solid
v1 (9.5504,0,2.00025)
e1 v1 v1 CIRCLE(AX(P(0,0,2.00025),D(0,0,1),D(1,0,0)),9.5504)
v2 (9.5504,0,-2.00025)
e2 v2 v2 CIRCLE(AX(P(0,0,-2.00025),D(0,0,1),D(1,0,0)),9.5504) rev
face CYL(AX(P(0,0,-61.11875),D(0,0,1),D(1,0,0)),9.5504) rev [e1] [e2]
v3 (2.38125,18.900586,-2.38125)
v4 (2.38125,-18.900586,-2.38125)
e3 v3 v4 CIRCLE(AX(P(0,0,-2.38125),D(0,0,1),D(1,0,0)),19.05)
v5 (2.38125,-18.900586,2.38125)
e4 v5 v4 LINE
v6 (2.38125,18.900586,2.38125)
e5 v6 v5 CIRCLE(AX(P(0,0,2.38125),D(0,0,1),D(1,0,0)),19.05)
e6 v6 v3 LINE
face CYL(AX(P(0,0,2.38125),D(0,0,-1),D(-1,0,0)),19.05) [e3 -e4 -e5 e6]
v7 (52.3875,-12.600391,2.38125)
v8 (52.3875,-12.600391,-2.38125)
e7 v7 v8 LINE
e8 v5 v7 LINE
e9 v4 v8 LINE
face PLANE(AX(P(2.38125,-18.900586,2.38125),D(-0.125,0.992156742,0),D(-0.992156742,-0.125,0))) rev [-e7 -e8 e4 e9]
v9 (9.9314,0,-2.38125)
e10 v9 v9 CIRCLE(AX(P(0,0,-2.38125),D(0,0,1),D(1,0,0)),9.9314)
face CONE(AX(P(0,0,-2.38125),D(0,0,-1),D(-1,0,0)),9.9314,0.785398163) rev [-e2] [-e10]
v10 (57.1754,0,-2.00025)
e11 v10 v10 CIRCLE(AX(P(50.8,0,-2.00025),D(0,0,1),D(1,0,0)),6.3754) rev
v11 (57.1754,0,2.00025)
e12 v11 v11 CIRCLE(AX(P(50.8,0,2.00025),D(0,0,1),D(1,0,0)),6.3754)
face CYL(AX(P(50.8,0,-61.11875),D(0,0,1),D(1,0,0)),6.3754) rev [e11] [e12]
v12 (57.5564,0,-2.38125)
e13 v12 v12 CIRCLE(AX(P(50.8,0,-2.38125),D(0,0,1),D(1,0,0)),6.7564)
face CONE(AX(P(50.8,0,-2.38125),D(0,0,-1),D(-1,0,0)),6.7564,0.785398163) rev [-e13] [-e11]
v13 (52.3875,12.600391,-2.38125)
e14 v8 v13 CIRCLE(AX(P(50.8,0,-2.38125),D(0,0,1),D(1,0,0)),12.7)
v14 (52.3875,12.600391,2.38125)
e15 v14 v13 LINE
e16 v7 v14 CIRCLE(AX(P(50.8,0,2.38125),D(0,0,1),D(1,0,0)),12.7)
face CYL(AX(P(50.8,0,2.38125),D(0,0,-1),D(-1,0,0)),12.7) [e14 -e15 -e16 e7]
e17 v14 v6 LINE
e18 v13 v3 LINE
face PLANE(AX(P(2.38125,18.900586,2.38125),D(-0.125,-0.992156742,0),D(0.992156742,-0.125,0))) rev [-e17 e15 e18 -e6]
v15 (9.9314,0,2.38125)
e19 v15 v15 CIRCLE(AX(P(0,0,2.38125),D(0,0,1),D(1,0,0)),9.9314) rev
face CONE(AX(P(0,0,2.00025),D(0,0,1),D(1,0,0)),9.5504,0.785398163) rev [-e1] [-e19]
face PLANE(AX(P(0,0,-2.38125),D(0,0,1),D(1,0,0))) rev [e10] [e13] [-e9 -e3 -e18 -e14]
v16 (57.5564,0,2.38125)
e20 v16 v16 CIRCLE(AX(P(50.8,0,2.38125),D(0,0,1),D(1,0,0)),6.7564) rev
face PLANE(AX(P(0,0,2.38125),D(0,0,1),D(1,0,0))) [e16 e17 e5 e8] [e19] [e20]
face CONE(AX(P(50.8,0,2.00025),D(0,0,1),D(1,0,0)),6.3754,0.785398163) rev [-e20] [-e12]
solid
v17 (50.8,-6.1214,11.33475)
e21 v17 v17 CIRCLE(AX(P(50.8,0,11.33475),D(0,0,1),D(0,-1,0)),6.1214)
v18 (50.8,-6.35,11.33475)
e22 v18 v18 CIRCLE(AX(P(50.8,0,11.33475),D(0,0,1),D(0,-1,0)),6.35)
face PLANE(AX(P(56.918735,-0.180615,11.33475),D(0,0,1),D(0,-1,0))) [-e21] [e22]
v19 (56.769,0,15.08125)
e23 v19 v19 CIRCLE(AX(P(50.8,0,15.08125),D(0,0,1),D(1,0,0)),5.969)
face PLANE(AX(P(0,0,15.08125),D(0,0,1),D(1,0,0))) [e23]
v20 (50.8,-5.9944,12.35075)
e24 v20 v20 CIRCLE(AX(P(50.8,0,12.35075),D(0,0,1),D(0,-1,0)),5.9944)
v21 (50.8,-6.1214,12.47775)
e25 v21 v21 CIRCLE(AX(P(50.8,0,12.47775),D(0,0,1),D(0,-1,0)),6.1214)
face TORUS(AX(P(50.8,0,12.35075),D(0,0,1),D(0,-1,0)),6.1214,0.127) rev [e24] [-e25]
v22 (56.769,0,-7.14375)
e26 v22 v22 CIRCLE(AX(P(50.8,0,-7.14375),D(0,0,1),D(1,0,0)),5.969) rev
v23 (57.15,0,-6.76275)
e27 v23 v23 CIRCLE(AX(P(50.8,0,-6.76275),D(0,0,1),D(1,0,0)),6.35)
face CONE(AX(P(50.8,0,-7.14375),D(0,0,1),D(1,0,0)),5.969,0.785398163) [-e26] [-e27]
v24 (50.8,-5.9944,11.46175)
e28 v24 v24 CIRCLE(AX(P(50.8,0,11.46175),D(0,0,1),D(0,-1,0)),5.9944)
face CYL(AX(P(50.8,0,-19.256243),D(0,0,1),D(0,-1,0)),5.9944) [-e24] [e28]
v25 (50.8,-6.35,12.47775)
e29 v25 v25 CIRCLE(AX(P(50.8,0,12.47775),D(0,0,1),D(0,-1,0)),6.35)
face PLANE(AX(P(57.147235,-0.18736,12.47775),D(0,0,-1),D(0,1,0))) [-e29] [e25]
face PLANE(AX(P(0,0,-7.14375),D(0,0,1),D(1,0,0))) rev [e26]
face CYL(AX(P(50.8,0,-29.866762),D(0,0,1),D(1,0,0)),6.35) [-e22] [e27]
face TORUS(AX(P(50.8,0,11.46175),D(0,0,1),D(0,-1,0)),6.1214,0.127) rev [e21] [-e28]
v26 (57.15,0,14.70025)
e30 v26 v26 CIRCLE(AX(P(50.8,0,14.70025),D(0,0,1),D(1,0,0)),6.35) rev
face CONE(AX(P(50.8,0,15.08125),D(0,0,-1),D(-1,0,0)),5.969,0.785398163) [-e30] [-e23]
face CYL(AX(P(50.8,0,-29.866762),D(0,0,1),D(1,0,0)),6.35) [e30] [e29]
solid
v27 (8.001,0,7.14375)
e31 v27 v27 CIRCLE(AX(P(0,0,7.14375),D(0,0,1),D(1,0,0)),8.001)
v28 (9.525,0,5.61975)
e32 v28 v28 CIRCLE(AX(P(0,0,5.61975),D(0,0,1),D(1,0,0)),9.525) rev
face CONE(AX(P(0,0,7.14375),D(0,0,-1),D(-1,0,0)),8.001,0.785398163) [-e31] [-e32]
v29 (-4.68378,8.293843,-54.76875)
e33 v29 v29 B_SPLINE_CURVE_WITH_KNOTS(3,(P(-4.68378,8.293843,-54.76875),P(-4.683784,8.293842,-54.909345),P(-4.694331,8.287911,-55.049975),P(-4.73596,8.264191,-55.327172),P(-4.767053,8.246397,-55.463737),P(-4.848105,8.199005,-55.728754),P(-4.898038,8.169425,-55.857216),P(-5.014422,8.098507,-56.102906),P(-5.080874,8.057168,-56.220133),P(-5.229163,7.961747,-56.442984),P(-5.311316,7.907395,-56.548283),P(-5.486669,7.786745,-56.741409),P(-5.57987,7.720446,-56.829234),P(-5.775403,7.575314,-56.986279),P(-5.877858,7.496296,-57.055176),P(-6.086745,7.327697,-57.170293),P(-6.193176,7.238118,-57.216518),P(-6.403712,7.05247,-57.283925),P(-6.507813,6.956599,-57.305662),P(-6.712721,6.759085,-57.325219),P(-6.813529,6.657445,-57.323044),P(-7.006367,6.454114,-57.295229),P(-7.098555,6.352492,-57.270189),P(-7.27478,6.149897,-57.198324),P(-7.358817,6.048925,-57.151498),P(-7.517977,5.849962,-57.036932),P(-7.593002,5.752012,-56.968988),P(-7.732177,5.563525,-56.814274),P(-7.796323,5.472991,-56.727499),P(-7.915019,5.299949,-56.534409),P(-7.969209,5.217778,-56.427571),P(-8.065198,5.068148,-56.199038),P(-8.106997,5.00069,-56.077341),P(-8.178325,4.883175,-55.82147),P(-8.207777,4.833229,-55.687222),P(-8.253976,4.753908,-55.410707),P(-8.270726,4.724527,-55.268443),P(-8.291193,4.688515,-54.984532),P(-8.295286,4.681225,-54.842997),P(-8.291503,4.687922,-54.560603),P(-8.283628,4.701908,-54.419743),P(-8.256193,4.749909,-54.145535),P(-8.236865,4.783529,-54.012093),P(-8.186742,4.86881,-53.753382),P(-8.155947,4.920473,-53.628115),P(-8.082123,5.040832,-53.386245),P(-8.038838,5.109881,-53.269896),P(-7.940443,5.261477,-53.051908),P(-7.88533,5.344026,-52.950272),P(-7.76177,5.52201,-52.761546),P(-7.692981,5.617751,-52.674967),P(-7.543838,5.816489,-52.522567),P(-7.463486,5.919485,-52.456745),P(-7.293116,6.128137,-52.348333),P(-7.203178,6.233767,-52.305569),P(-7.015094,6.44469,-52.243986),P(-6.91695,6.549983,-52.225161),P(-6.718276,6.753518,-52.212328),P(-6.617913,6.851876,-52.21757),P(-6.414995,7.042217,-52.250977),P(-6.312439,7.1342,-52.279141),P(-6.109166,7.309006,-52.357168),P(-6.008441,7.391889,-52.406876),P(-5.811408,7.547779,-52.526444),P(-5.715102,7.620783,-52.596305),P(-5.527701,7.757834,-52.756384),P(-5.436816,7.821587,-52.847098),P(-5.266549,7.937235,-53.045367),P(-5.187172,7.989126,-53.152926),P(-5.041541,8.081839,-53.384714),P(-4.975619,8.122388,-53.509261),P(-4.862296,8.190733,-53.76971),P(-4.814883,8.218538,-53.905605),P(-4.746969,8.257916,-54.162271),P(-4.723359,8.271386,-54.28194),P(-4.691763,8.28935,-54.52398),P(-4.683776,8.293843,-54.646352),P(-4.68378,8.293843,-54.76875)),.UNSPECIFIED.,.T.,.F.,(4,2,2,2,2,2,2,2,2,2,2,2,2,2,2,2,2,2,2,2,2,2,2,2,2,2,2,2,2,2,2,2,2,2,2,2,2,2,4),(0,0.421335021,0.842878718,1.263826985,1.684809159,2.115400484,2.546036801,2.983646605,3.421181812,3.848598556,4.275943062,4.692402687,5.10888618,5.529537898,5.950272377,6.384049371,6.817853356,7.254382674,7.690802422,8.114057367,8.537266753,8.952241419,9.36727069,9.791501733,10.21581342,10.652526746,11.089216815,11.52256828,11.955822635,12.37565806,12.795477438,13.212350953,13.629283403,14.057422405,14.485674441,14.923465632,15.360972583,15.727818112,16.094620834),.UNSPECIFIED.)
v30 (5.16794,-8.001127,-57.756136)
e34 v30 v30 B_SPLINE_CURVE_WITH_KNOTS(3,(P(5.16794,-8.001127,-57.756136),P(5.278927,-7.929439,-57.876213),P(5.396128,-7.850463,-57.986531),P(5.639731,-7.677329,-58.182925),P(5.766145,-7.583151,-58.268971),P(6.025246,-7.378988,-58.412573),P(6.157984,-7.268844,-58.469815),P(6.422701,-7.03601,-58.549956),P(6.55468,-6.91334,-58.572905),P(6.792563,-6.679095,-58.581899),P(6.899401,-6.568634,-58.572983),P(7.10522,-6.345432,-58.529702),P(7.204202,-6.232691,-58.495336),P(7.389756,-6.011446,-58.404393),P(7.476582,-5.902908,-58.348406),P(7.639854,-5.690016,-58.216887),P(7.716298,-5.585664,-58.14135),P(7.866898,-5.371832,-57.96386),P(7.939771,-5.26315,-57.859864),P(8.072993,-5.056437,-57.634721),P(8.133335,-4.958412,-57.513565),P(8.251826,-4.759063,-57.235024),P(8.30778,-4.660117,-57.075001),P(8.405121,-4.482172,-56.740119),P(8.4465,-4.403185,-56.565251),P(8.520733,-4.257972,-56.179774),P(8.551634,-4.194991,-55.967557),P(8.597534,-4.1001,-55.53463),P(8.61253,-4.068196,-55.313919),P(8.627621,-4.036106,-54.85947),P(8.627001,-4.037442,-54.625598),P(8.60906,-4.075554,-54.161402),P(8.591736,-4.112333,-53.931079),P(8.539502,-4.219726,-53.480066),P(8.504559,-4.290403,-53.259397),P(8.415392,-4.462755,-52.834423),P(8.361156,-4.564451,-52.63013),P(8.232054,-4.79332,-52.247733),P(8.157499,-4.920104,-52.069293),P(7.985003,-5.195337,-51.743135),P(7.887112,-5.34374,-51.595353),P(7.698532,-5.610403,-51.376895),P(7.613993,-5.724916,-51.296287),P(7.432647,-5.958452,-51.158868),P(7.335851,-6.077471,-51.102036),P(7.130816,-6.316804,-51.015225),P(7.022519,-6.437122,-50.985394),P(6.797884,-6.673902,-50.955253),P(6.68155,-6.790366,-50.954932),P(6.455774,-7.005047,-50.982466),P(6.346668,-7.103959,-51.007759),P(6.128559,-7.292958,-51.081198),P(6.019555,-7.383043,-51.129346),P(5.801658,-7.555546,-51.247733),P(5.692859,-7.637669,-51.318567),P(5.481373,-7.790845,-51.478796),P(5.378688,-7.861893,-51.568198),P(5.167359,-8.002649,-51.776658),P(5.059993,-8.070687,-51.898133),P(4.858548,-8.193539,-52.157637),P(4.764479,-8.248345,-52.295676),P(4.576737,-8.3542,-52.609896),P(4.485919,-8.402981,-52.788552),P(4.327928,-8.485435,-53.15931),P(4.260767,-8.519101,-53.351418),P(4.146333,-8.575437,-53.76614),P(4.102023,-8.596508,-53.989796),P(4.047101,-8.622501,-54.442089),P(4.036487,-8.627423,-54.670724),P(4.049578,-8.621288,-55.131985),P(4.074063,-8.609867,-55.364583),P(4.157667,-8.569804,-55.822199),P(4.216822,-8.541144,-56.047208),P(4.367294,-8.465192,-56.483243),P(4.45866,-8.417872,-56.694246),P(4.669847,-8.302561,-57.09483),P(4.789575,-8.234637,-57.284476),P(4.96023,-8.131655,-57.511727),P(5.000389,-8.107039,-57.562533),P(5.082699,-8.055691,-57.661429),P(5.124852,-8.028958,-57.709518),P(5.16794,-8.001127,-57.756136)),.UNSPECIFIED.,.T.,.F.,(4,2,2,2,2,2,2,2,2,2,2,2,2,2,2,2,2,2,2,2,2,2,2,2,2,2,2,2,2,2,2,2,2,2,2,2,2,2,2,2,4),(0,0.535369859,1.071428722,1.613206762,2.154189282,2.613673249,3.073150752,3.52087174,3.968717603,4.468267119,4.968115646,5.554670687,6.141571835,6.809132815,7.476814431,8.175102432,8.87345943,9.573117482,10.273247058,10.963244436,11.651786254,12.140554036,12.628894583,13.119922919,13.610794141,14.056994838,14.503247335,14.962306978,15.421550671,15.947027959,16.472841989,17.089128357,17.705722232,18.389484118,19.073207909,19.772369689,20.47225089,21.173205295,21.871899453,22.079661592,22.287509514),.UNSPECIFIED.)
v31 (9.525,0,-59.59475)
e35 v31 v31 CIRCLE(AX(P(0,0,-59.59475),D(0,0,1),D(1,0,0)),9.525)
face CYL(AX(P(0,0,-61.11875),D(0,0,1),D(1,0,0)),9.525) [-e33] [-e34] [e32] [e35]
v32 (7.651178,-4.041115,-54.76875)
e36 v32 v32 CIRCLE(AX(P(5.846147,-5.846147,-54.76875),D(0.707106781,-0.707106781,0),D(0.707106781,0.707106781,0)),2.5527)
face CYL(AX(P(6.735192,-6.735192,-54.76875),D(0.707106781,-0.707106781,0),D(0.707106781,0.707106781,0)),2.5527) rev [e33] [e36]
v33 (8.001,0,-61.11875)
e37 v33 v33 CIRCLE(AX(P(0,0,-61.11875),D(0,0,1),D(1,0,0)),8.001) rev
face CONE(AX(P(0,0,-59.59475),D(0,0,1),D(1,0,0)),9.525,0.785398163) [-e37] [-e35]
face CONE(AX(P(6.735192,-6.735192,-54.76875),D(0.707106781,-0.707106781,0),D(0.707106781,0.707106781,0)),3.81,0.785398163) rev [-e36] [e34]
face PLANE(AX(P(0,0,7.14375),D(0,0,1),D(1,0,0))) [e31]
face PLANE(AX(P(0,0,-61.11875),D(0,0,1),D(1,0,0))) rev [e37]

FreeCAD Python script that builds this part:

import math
import FreeCAD as App
import Part
import Sketcher

V = App.Vector
Q = App.Units.Quantity


def edges_at(feature, points):
    """Names of the edges that pass closest to the given points."""
    edges = feature.Shape.Edges
    near = lambda p: min(range(len(edges)), key=lambda i: edges[i].distToShape(Part.Vertex(*p))[0])
    return sorted({f"Edge{near(p) + 1}" for p in points})


def add_polygon(sketch, points):
    """Adds a closed chain of lines whose ends are joined by coincident constraints."""
    first, n = sketch.GeometryCount, len(points)
    for a, b in zip(points, points[1:] + points[:1]):
        sketch.addGeometry(Part.LineSegment(App.Vector(*a, 0), App.Vector(*b, 0)), False)
    for i in range(n):
        sketch.addConstraint(Sketcher.Constraint("Coincident", first + i, 2, first + (i + 1) % n, 1))

doc = App.newDocument("Part")
body = doc.addObject("PartDesign::Body", "Body")

# Sketch on XY plane
sketch1 = body.newObject("Sketcher::SketchObject", "Sketch")
sketch1.AttachmentSupport = (doc.getObject("XY_Plane"), [""])
sketch1.MapMode = "FlatFace"
sketch1.addGeometry(Part.ArcOfCircle(Part.Circle(V(0, 0, 0), V(0, 0, 1), 19), math.radians(83), math.radians(277)), False)
sketch1.addGeometry(Part.LineSegment(V(2, -19, 0), V(52, -13, 0)), False)
sketch1.addGeometry(Part.ArcOfCircle(Part.Circle(V(51, 0, 0), V(0, 0, 1), 13), math.radians(-83), math.radians(83)), False)
sketch1.addGeometry(Part.LineSegment(V(52, 13, 0), V(2, 19, 0)), False)
sketch1.addConstraint(Sketcher.Constraint("Tangent", 0, 2, 1, 1))
sketch1.addConstraint(Sketcher.Constraint("Tangent", 1, 2, 2, 1))
sketch1.addConstraint(Sketcher.Constraint("Tangent", 2, 2, 3, 1))
sketch1.addConstraint(Sketcher.Constraint("Tangent", 3, 2, 0, 1))
sketch1.addConstraint(Sketcher.Constraint("Coincident", 0, 3, -1, 1))
sketch1.addConstraint(Sketcher.Constraint("PointOnObject", 2, 3, -1))
sketch1.addConstraint(Sketcher.Constraint("Radius", 2, Q("0.5 in")))
sketch1.addConstraint(Sketcher.Constraint("Radius", 0, Q("0.75 in")))
sketch1.addConstraint(Sketcher.Constraint("DistanceX", -1, 1, 2, 3, Q("2 in")))
pad1 = body.newObject("PartDesign::Pad", "Pad")
pad1.Profile = sketch1
pad1.Length = Q("0.1875 in")
pad1.Midplane = True

# Sketch on XY plane
sketch2 = body.newObject("Sketcher::SketchObject", "Sketch001")
sketch2.AttachmentSupport = (doc.getObject("XY_Plane"), [""])
sketch2.MapMode = "FlatFace"
sketch2.AttachmentOffset = App.Placement(V(0, 0, 0.09375 * 25.4), App.Rotation())
sketch2.addGeometry(Part.Circle(V(51, 0, 0), V(0, 0, 1), 6), False)
sketch2.addGeometry(Part.Circle(V(0, 0, 0), V(0, 0, 1), 10), False)
sketch2.addConstraint(Sketcher.Constraint("Coincident", 1, 3, -1, 1))
sketch2.addConstraint(Sketcher.Constraint("PointOnObject", 0, 3, -1))
sketch2.addConstraint(Sketcher.Constraint("Diameter", 0, Q("0.502 in")))
sketch2.addConstraint(Sketcher.Constraint("Diameter", 1, Q("0.752 in")))
sketch2.addConstraint(Sketcher.Constraint("DistanceX", -1, 1, 0, 3, Q("2 in")))
pocket1 = body.newObject("PartDesign::Pocket", "Pocket")
pocket1.Profile = sketch2
pocket1.Type = "ThroughAll"
doc.recompute()

chamfer = body.newObject("PartDesign::Chamfer", "Chamfer")
chamfer.Base = (pocket1, edges_at(pocket1, [
    (44.425, 0, -2.381),
    (44.425, 0, 2.381),
    (-9.55, 0, -2.381),
    (-9.55, 0, 2.381),
]))
chamfer.Size = Q("0.015 in")
body2 = doc.addObject("PartDesign::Body", "Body001")

# Sketch on XY plane
sketch3 = body2.newObject("Sketcher::SketchObject", "Sketch002")
sketch3.AttachmentSupport = (doc.getObject("XY_Plane001"), [""])
sketch3.MapMode = "FlatFace"
sketch3.AttachmentOffset = App.Placement(V(0, 0, 0.09375 * 25.4), App.Rotation())
sketch3.addGeometry(Part.Circle(V(0, 0, 0), V(0, 0, 1), 10), False)
sketch3.addConstraint(Sketcher.Constraint("Coincident", 0, 3, -1, 1))
sketch3.addConstraint(Sketcher.Constraint("Diameter", 0, Q("0.75 in")))
pad2 = body2.newObject("PartDesign::Pad", "Pad001")
pad2.Profile = sketch3
pad2.Type = "TwoLengths"
pad2.Length = Q("0.1875 in")
pad2.Length2 = Q("2.5 in")
doc.recompute()

chamfer2 = body2.newObject("PartDesign::Chamfer", "Chamfer001")
chamfer2.Base = (pad2, edges_at(pad2, [(-9.525, 0, -61.119), (-9.525, 0, 7.144)]))
chamfer2.Size = Q("0.06 in")

# Sketch on XY plane
sketch4 = body2.newObject("Sketcher::SketchObject", "Sketch003")
sketch4.AttachmentSupport = (doc.getObject("XY_Plane001"), [""])
sketch4.MapMode = "FlatFace"
sketch4.AttachmentOffset = App.Placement(V(0, 0, -2.15625 * 25.4), App.Rotation())
add_polygon(sketch4, [(-19, 19), (6.7, -6.7), (9.4, -4), (7.7, -4), (-16.4, 20), (-16.4, 21.7)])  # lines 0-5
sketch4.addGeometry(Part.LineSegment(V(6.7, -6.7, 0), V(-19, 19, 0)), True)  # axis
sketch4.addConstraint(Sketcher.Constraint("Horizontal", 2))
sketch4.addConstraint(Sketcher.Constraint("Vertical", 4))
sketch4.addConstraint(Sketcher.Constraint("Coincident", 6, 1, 0, 2))
sketch4.addConstraint(Sketcher.Constraint("Coincident", 6, 2, 5, 2))
sketch4.addConstraint(Sketcher.Constraint("Perpendicular", 0, 1))
sketch4.addConstraint(Sketcher.Constraint("Perpendicular", 1, 3))
sketch4.addConstraint(Sketcher.Constraint("Perpendicular", 3, 5))
sketch4.addConstraint(Sketcher.Constraint("Equal", 2, 4))
sketch4.addConstraint(Sketcher.Constraint("Equal", 1, 5))
sketch4.addConstraint(Sketcher.Constraint("Distance", 1, Q("0.15 in")))
sketch4.addConstraint(Sketcher.Constraint("DistanceX", 5, 2, -1, 1, Q("0.75 in")))
sketch4.addConstraint(Sketcher.Constraint("DistanceY", -1, 1, 5, 2, Q("0.75 in")))
sketch4.addConstraint(Sketcher.Constraint("DistanceX", 2, 2, 2, 1, Q("1.778091 mm")))
sketch4.addConstraint(Sketcher.Constraint("DistanceX", 3, 2, 2, 2, Q("24.007101 mm")))
groove = body2.newObject("PartDesign::Groove", "Groove")
groove.Profile = sketch4
groove.ReferenceAxis = (sketch4, ["Axis0"])
groove.Angle = 360
body3 = doc.addObject("PartDesign::Body", "Body002")

# Sketch on XY plane
sketch5 = body3.newObject("Sketcher::SketchObject", "Sketch004")
sketch5.AttachmentSupport = (doc.getObject("XY_Plane002"), [""])
sketch5.MapMode = "FlatFace"
sketch5.AttachmentOffset = App.Placement(V(0, 0, 0.09375 * 25.4), App.Rotation())
sketch5.addGeometry(Part.Circle(V(51, 0, 0), V(0, 0, 1), 6), False)
sketch5.addConstraint(Sketcher.Constraint("PointOnObject", 0, 3, -1))
sketch5.addConstraint(Sketcher.Constraint("Diameter", 0, Q("0.5 in")))
sketch5.addConstraint(Sketcher.Constraint("DistanceX", -1, 1, 0, 3, Q("2 in")))
pad3 = body3.newObject("PartDesign::Pad", "Pad002")
pad3.Profile = sketch5
pad3.Type = "TwoLengths"
pad3.Length = Q("0.5 in")
pad3.Length2 = Q("0.375 in")
doc.recompute()

chamfer3 = body3.newObject("PartDesign::Chamfer", "Chamfer002")
chamfer3.Base = (pad3, edges_at(pad3, [(44.45, 0, -7.144), (44.45, 0, 15.081)]))
chamfer3.Size = Q("0.015 in")

# Sketch on an angled plane
sketch6 = body3.newObject("Sketcher::SketchObject", "Sketch005")
sketch6.Placement = App.Placement(V(12.91563, 1.118285, -17.50304), App.Rotation(V(0.034992183, -0.001032913, 0.999387052), V(-0.998951936, 0.029487446, 0.035007425), V(-0.029505531, -0.999564617, 0), "ZXY"))
sketch6.addGeometry(Part.LineSegment(V(30.36, -42.99, 0), V(30.37, -43.21, 0)), False)
sketch6.addGeometry(Part.LineSegment(V(30.37, -43.21, 0), V(31.51, -43.17, 0)), False)
sketch6.addGeometry(Part.LineSegment(V(31.51, -43.17, 0), V(31.5, -42.95, 0)), False)
sketch6.addGeometry(Part.ArcOfCircle(Part.Circle(V(31.38, -42.95, 0), V(0, 0, 1), 0.13), math.radians(2), math.radians(92)), False)
sketch6.addGeometry(Part.LineSegment(V(31.37, -42.82, 0), V(30.48, -42.85, 0)), False)
sketch6.addGeometry(Part.ArcOfCircle(Part.Circle(V(30.49, -42.98, 0), V(0, 0, 1), 0.13), math.radians(92), math.radians(182)), False)
sketch6.addGeometry(Part.LineSegment(V(30.15, -36.87, 0), V(31.29, -36.83, 0)), True)  # axis
sketch6.addConstraint(Sketcher.Constraint("Coincident", 0, 2, 1, 1))
sketch6.addConstraint(Sketcher.Constraint("Coincident", 1, 2, 2, 1))
sketch6.addConstraint(Sketcher.Constraint("Tangent", 2, 2, 3, 1))
sketch6.addConstraint(Sketcher.Constraint("Tangent", 3, 2, 4, 1))
sketch6.addConstraint(Sketcher.Constraint("Tangent", 4, 2, 5, 1))
sketch6.addConstraint(Sketcher.Constraint("Tangent", 5, 2, 0, 1))
sketch6.addConstraint(Sketcher.Constraint("Equal", 3, 5))
sketch6.addConstraint(Sketcher.Constraint("Perpendicular", 0, 1))
sketch6.addConstraint(Sketcher.Constraint("Perpendicular", 1, 2))
sketch6.addConstraint(Sketcher.Constraint("Perpendicular", 2, 4))
sketch6.addConstraint(Sketcher.Constraint("Parallel", 4, 6))
sketch6.addConstraint(Sketcher.Constraint("Equal", 1, 6))
sketch6.addConstraint(Sketcher.Constraint("Radius", 3, Q("0.005 in")))
sketch6.addConstraint(Sketcher.Constraint("Distance", 0, Q("0.009 in")))
sketch6.addConstraint(Sketcher.Constraint("Distance", 1, Q("0.045 in")))
sketch6.addConstraint(Sketcher.Constraint("DistanceY", 6, 1, -1, 1, Q("1.4515001 in")))
sketch6.addConstraint(Sketcher.Constraint("DistanceX", 0, 2, 1, 2, Q("1.142299 mm")))
sketch6.addConstraint(Sketcher.Constraint("DistanceY", 5, 3, 6, 1, Q("6.113202 mm")))
sketch6.addConstraint(Sketcher.Constraint("DistanceX", -1, 1, 2, 2, Q("31.50352 mm")))
sketch6.addConstraint(Sketcher.Constraint("DistanceX", 6, 1, 4, 2, Q("0.336771 mm")))
groove2 = body3.newObject("PartDesign::Groove", "Groove001")
groove2.Profile = sketch6
groove2.ReferenceAxis = (sketch6, ["Axis0"])
groove2.Angle = 360

doc.recompute()
